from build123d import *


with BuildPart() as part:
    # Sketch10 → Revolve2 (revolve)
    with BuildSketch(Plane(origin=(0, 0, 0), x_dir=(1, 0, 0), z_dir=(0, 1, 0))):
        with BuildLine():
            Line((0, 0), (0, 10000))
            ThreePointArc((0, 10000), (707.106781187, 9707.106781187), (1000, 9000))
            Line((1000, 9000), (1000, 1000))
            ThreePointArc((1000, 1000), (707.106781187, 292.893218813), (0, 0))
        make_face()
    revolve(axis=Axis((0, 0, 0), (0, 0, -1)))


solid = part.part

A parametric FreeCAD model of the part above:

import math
import FreeCAD as App
import Part
import Sketcher
Q = App.Units.Quantity

doc = App.newDocument("Part")
body = doc.addObject("PartDesign::Body", "Body")

# Sketch on XZ plane
sketch1 = body.newObject("Sketcher::SketchObject", "Sketch")
sketch1.AttachmentSupport = (doc.getObject("XZ_Plane"), [""])
sketch1.MapMode = "FlatFace"
sketch1.addGeometry([
    Part.LineSegment(App.Vector(0, -10000, 0), App.Vector(0, 0, 0)),
    Part.ArcOfCircle(Part.Circle(App.Vector(0, -1000, 0), App.Vector(0, 0, 1), 1000), math.radians(0), math.radians(90)),
    Part.LineSegment(App.Vector(1000, -1000, 0), App.Vector(1000, -9000, 0)),
    Part.ArcOfCircle(Part.Circle(App.Vector(0, -9000, 0), App.Vector(0, 0, 1), 1000), math.radians(-90), math.radians(0)),
], False)
sketch1.addConstraint([
    Sketcher.Constraint("Coincident", 0, 2, 1, 2),
    Sketcher.Constraint("Coincident", 1, 1, 2, 1),
    Sketcher.Constraint("Coincident", 2, 2, 3, 2),
    Sketcher.Constraint("Coincident", 3, 1, 0, 1),
    Sketcher.Constraint("Vertical", 0),
    Sketcher.Constraint("Vertical", 2),
    Sketcher.Constraint("Coincident", 0, 2, -1, 1),
    Sketcher.Constraint("Equal", 1, 3),
    Sketcher.Constraint("PointOnObject", 1, 3, -2),
    Sketcher.Constraint("Horizontal", 3, 3, 2, 2),
    Sketcher.Constraint("Radius", 1, Q("1000 mm")),
    Sketcher.Constraint("DistanceY", 0, 1, 0, 2, Q("10000 mm")),
    Sketcher.Constraint("DistanceY", 2, 2, 2, 1, Q("8000 mm")),
])
revolution = body.newObject("PartDesign::Revolution", "Revolution")
revolution.Profile = sketch1
revolution.ReferenceAxis = (sketch1, ["V_Axis"])
revolution.Angle = 360

doc.recompute()
